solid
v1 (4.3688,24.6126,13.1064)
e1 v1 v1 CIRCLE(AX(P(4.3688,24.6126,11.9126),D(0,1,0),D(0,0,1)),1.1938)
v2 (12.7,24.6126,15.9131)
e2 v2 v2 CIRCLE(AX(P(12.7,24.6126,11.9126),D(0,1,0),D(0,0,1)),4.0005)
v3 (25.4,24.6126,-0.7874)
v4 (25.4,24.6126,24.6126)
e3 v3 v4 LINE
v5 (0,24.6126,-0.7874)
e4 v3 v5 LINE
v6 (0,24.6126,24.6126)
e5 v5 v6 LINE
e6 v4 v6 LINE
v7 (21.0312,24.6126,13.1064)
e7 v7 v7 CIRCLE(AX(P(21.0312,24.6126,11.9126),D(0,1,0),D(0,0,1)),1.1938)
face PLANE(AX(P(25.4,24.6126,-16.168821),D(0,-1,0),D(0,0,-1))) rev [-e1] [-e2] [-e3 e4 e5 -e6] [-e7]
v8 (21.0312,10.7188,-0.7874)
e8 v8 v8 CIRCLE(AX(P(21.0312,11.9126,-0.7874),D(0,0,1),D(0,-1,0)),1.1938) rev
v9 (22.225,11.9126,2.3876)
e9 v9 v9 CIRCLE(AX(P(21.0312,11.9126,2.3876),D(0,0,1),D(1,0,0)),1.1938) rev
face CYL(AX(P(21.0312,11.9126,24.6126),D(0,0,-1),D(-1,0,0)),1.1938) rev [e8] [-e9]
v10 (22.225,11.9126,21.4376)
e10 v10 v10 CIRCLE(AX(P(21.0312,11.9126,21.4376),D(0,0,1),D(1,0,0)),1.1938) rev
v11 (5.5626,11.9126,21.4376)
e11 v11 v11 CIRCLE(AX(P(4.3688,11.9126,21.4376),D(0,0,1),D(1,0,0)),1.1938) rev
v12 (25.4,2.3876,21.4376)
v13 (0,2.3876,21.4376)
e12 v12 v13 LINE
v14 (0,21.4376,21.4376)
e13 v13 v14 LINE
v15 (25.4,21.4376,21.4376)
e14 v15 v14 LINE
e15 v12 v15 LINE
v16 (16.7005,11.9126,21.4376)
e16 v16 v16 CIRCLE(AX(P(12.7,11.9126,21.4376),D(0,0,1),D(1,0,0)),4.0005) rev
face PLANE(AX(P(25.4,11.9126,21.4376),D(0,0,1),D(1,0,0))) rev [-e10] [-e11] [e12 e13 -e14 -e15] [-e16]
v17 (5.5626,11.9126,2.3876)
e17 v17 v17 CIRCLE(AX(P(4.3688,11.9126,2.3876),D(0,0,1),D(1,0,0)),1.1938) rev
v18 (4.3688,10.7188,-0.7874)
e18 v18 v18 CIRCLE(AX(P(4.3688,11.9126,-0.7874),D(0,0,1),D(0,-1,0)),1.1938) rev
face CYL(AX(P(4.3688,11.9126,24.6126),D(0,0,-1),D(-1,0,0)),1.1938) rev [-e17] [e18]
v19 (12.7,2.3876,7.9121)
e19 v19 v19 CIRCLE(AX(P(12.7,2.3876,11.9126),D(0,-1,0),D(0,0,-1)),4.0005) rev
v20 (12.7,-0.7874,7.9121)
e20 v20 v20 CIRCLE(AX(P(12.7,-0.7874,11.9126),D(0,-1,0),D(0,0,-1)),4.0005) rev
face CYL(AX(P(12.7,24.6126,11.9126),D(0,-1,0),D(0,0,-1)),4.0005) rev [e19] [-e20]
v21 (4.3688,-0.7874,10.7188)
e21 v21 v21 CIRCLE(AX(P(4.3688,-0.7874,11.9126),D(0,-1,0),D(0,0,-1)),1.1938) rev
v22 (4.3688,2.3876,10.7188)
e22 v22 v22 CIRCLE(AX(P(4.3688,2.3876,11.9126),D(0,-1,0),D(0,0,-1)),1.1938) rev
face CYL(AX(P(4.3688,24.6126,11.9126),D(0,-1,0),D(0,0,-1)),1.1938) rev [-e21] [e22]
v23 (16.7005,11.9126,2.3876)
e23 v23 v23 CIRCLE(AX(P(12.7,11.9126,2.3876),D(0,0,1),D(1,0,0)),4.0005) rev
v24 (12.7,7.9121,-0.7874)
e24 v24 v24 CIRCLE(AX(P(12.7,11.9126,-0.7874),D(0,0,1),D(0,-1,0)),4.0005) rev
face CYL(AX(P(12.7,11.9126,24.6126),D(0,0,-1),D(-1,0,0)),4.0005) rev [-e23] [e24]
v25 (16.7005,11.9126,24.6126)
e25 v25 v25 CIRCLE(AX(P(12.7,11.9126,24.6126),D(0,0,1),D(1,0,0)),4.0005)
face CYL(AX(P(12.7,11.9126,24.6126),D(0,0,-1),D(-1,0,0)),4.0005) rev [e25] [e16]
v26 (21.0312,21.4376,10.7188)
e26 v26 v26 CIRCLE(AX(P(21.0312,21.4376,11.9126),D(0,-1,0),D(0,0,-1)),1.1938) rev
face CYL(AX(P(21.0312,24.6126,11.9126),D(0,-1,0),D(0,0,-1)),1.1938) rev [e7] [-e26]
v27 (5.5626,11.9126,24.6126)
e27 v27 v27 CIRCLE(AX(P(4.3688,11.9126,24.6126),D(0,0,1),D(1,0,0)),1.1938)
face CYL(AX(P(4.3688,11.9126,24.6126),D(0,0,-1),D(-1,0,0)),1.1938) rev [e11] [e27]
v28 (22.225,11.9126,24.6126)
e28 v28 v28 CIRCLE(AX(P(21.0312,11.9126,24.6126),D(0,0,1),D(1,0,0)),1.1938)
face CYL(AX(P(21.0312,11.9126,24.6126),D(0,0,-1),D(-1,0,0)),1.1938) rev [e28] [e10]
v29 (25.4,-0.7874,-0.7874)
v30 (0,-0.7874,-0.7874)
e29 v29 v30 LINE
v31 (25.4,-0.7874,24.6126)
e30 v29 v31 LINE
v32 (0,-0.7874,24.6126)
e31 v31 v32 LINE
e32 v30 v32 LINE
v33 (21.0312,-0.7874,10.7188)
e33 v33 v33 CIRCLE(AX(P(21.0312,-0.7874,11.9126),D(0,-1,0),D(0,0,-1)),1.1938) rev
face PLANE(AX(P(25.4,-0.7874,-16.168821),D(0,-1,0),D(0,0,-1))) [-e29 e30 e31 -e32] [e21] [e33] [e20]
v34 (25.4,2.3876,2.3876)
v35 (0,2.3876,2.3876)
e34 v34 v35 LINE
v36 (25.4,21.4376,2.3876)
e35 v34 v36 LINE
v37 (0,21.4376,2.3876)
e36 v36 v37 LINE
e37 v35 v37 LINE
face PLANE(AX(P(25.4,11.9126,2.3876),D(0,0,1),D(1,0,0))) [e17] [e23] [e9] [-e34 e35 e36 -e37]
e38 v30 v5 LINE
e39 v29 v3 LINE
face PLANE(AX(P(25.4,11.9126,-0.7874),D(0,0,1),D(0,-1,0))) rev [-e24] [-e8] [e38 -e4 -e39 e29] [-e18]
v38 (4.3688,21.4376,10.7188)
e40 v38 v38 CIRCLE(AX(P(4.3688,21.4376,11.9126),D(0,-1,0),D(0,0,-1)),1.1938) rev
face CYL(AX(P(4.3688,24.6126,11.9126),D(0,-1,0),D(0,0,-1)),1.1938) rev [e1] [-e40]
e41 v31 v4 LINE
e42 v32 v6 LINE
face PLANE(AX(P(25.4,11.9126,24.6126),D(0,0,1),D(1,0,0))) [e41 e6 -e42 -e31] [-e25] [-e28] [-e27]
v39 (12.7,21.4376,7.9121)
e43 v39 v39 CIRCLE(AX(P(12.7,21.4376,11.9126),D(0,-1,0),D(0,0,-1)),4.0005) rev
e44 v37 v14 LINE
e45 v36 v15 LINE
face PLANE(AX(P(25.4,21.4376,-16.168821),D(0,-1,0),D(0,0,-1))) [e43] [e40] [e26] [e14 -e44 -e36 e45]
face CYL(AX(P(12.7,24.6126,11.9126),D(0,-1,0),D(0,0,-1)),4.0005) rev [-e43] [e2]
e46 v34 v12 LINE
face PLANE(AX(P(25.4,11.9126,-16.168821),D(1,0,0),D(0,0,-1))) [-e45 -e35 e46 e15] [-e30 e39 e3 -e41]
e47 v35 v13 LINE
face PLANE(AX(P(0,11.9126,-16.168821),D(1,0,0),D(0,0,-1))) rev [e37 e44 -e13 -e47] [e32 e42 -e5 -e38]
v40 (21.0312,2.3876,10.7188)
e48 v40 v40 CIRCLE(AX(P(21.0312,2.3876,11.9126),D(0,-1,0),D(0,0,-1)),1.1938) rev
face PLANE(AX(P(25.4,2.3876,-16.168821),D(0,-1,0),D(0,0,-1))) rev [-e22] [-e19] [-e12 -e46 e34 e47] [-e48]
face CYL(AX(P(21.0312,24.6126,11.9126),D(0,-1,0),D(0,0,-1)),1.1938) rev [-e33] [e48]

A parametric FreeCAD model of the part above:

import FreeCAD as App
import Part
import Sketcher

V = App.Vector
Q = App.Units.Quantity


def add_polygon(sketch, points):
    """Adds a closed chain of lines whose ends are joined by coincident constraints."""
    first, n = sketch.GeometryCount, len(points)
    for a, b in zip(points, points[1:] + points[:1]):
        sketch.addGeometry(Part.LineSegment(App.Vector(*a, 0), App.Vector(*b, 0)), False)
    for i in range(n):
        sketch.addConstraint(Sketcher.Constraint("Coincident", first + i, 2, first + (i + 1) % n, 1))

doc = App.newDocument("Part")
body = doc.addObject("PartDesign::Body", "Body")

# Sketch on YZ plane
sketch1 = doc.addObject("Sketcher::SketchObject", "Sketch")
body.addObject(sketch1)
sketch1.AttachmentSupport = (doc.YZ_Plane, [""])
sketch1.MapMode = "FlatFace"
add_polygon(sketch1, [(25, 25), (-1, 25), (-1, -1), (25, -1)])  # lines 0-3
add_polygon(sketch1, [(2, 2), (2, 21), (21, 21), (21, 2)])  # lines 4-7
sketch1.addConstraint(Sketcher.Constraint("Horizontal", 0))
sketch1.addConstraint(Sketcher.Constraint("Vertical", 1))
sketch1.addConstraint(Sketcher.Constraint("Horizontal", 2))
sketch1.addConstraint(Sketcher.Constraint("Vertical", 3))
sketch1.addConstraint(Sketcher.Constraint("Vertical", 4))
sketch1.addConstraint(Sketcher.Constraint("Horizontal", 5))
sketch1.addConstraint(Sketcher.Constraint("Vertical", 6))
sketch1.addConstraint(Sketcher.Constraint("Horizontal", 7))
sketch1.addConstraint(Sketcher.Constraint("Equal", 2, 1))
sketch1.addConstraint(Sketcher.Constraint("Equal", 7, 4))
sketch1.addConstraint(Sketcher.Constraint("DistanceX", 0, 2, 0, 1, Q("1 in")))
sketch1.addConstraint(Sketcher.Constraint("DistanceX", 5, 1, 5, 2, Q("0.75 in")))
sketch1.addConstraint(Sketcher.Constraint("DistanceX", 0, 2, -1, 1, Q("0.031 in")))
sketch1.addConstraint(Sketcher.Constraint("DistanceY", -1, 1, 0, 2, Q("0.969 in")))
sketch1.addConstraint(Sketcher.Constraint("DistanceX", -1, 1, 4, 2, Q("0.094 in")))
sketch1.addConstraint(Sketcher.Constraint("DistanceY", -1, 1, 4, 2, Q("0.844 in")))
pad1 = doc.addObject("PartDesign::Pad", "Pad")
body.addObject(pad1)
pad1.Profile = sketch1
pad1.Length = Q("1 in")

# Sketch on XZ plane
sketch2 = doc.addObject("Sketcher::SketchObject", "Sketch001")
body.addObject(sketch2)
sketch2.AttachmentSupport = (doc.XZ_Plane, [""])
sketch2.MapMode = "FlatFace"
sketch2.addGeometry(Part.Circle(V(12.7, 11.9, 0), V(0, 0, 1), 4), False)
sketch2.addGeometry(Part.Circle(V(4.4, 11.9, 0), V(0, 0, 1), 1.2), False)
sketch2.addGeometry(Part.Circle(V(21, 11.9, 0), V(0, 0, 1), 1.2), False)
sketch2.addConstraint(Sketcher.Constraint("Equal", 1, 2))
sketch2.addConstraint(Sketcher.Constraint("Horizontal", 0, 3, 1, 3))
sketch2.addConstraint(Sketcher.Constraint("Horizontal", 1, 3, 2, 3))
sketch2.addConstraint(Sketcher.Constraint("Diameter", 0, Q("0.315 in")))
sketch2.addConstraint(Sketcher.Constraint("Diameter", 1, Q("0.094 in")))
sketch2.addConstraint(Sketcher.Constraint("DistanceX", -1, 1, 0, 3, Q("0.5 in")))
sketch2.addConstraint(Sketcher.Constraint("DistanceY", -1, 1, 0, 3, Q("0.469 in")))
sketch2.addConstraint(Sketcher.Constraint("DistanceX", -1, 1, 1, 3, Q("0.172 in")))
sketch2.addConstraint(Sketcher.Constraint("DistanceX", -1, 1, 2, 3, Q("0.828 in")))
pocket1 = doc.addObject("PartDesign::Pocket", "Pocket")
body.addObject(pocket1)
pocket1.Profile = sketch2
pocket1.Type = "ThroughAll"
pocket1.Midplane = True

# Sketch on XY plane
sketch3 = doc.addObject("Sketcher::SketchObject", "Sketch002")
body.addObject(sketch3)
sketch3.AttachmentSupport = (doc.XY_Plane, [""])
sketch3.MapMode = "FlatFace"
sketch3.addGeometry(Part.Circle(V(4.4, 11.9, 0), V(0, 0, 1), 1.2), False)
sketch3.addGeometry(Part.Circle(V(21, 11.9, 0), V(0, 0, 1), 1.2), False)
sketch3.addGeometry(Part.Circle(V(12.7, 11.9, 0), V(0, 0, 1), 4), False)
sketch3.addConstraint(Sketcher.Constraint("Equal", 0, 1))
sketch3.addConstraint(Sketcher.Constraint("Horizontal", 0, 3, 1, 3))
sketch3.addConstraint(Sketcher.Constraint("Horizontal", 1, 3, 2, 3))
sketch3.addConstraint(Sketcher.Constraint("Diameter", 0, Q("0.094 in")))
sketch3.addConstraint(Sketcher.Constraint("Diameter", 2, Q("0.315 in")))
sketch3.addConstraint(Sketcher.Constraint("DistanceX", -1, 1, 2, 3, Q("0.5 in")))
sketch3.addConstraint(Sketcher.Constraint("DistanceX", -1, 1, 0, 3, Q("0.172 in")))
sketch3.addConstraint(Sketcher.Constraint("DistanceY", -1, 1, 0, 3, Q("0.469 in")))
sketch3.addConstraint(Sketcher.Constraint("DistanceX", -1, 1, 1, 3, Q("0.828 in")))
pocket2 = doc.addObject("PartDesign::Pocket", "Pocket001")
body.addObject(pocket2)
pocket2.Profile = sketch3
pocket2.Type = "ThroughAll"
pocket2.Midplane = True

doc.recompute()
